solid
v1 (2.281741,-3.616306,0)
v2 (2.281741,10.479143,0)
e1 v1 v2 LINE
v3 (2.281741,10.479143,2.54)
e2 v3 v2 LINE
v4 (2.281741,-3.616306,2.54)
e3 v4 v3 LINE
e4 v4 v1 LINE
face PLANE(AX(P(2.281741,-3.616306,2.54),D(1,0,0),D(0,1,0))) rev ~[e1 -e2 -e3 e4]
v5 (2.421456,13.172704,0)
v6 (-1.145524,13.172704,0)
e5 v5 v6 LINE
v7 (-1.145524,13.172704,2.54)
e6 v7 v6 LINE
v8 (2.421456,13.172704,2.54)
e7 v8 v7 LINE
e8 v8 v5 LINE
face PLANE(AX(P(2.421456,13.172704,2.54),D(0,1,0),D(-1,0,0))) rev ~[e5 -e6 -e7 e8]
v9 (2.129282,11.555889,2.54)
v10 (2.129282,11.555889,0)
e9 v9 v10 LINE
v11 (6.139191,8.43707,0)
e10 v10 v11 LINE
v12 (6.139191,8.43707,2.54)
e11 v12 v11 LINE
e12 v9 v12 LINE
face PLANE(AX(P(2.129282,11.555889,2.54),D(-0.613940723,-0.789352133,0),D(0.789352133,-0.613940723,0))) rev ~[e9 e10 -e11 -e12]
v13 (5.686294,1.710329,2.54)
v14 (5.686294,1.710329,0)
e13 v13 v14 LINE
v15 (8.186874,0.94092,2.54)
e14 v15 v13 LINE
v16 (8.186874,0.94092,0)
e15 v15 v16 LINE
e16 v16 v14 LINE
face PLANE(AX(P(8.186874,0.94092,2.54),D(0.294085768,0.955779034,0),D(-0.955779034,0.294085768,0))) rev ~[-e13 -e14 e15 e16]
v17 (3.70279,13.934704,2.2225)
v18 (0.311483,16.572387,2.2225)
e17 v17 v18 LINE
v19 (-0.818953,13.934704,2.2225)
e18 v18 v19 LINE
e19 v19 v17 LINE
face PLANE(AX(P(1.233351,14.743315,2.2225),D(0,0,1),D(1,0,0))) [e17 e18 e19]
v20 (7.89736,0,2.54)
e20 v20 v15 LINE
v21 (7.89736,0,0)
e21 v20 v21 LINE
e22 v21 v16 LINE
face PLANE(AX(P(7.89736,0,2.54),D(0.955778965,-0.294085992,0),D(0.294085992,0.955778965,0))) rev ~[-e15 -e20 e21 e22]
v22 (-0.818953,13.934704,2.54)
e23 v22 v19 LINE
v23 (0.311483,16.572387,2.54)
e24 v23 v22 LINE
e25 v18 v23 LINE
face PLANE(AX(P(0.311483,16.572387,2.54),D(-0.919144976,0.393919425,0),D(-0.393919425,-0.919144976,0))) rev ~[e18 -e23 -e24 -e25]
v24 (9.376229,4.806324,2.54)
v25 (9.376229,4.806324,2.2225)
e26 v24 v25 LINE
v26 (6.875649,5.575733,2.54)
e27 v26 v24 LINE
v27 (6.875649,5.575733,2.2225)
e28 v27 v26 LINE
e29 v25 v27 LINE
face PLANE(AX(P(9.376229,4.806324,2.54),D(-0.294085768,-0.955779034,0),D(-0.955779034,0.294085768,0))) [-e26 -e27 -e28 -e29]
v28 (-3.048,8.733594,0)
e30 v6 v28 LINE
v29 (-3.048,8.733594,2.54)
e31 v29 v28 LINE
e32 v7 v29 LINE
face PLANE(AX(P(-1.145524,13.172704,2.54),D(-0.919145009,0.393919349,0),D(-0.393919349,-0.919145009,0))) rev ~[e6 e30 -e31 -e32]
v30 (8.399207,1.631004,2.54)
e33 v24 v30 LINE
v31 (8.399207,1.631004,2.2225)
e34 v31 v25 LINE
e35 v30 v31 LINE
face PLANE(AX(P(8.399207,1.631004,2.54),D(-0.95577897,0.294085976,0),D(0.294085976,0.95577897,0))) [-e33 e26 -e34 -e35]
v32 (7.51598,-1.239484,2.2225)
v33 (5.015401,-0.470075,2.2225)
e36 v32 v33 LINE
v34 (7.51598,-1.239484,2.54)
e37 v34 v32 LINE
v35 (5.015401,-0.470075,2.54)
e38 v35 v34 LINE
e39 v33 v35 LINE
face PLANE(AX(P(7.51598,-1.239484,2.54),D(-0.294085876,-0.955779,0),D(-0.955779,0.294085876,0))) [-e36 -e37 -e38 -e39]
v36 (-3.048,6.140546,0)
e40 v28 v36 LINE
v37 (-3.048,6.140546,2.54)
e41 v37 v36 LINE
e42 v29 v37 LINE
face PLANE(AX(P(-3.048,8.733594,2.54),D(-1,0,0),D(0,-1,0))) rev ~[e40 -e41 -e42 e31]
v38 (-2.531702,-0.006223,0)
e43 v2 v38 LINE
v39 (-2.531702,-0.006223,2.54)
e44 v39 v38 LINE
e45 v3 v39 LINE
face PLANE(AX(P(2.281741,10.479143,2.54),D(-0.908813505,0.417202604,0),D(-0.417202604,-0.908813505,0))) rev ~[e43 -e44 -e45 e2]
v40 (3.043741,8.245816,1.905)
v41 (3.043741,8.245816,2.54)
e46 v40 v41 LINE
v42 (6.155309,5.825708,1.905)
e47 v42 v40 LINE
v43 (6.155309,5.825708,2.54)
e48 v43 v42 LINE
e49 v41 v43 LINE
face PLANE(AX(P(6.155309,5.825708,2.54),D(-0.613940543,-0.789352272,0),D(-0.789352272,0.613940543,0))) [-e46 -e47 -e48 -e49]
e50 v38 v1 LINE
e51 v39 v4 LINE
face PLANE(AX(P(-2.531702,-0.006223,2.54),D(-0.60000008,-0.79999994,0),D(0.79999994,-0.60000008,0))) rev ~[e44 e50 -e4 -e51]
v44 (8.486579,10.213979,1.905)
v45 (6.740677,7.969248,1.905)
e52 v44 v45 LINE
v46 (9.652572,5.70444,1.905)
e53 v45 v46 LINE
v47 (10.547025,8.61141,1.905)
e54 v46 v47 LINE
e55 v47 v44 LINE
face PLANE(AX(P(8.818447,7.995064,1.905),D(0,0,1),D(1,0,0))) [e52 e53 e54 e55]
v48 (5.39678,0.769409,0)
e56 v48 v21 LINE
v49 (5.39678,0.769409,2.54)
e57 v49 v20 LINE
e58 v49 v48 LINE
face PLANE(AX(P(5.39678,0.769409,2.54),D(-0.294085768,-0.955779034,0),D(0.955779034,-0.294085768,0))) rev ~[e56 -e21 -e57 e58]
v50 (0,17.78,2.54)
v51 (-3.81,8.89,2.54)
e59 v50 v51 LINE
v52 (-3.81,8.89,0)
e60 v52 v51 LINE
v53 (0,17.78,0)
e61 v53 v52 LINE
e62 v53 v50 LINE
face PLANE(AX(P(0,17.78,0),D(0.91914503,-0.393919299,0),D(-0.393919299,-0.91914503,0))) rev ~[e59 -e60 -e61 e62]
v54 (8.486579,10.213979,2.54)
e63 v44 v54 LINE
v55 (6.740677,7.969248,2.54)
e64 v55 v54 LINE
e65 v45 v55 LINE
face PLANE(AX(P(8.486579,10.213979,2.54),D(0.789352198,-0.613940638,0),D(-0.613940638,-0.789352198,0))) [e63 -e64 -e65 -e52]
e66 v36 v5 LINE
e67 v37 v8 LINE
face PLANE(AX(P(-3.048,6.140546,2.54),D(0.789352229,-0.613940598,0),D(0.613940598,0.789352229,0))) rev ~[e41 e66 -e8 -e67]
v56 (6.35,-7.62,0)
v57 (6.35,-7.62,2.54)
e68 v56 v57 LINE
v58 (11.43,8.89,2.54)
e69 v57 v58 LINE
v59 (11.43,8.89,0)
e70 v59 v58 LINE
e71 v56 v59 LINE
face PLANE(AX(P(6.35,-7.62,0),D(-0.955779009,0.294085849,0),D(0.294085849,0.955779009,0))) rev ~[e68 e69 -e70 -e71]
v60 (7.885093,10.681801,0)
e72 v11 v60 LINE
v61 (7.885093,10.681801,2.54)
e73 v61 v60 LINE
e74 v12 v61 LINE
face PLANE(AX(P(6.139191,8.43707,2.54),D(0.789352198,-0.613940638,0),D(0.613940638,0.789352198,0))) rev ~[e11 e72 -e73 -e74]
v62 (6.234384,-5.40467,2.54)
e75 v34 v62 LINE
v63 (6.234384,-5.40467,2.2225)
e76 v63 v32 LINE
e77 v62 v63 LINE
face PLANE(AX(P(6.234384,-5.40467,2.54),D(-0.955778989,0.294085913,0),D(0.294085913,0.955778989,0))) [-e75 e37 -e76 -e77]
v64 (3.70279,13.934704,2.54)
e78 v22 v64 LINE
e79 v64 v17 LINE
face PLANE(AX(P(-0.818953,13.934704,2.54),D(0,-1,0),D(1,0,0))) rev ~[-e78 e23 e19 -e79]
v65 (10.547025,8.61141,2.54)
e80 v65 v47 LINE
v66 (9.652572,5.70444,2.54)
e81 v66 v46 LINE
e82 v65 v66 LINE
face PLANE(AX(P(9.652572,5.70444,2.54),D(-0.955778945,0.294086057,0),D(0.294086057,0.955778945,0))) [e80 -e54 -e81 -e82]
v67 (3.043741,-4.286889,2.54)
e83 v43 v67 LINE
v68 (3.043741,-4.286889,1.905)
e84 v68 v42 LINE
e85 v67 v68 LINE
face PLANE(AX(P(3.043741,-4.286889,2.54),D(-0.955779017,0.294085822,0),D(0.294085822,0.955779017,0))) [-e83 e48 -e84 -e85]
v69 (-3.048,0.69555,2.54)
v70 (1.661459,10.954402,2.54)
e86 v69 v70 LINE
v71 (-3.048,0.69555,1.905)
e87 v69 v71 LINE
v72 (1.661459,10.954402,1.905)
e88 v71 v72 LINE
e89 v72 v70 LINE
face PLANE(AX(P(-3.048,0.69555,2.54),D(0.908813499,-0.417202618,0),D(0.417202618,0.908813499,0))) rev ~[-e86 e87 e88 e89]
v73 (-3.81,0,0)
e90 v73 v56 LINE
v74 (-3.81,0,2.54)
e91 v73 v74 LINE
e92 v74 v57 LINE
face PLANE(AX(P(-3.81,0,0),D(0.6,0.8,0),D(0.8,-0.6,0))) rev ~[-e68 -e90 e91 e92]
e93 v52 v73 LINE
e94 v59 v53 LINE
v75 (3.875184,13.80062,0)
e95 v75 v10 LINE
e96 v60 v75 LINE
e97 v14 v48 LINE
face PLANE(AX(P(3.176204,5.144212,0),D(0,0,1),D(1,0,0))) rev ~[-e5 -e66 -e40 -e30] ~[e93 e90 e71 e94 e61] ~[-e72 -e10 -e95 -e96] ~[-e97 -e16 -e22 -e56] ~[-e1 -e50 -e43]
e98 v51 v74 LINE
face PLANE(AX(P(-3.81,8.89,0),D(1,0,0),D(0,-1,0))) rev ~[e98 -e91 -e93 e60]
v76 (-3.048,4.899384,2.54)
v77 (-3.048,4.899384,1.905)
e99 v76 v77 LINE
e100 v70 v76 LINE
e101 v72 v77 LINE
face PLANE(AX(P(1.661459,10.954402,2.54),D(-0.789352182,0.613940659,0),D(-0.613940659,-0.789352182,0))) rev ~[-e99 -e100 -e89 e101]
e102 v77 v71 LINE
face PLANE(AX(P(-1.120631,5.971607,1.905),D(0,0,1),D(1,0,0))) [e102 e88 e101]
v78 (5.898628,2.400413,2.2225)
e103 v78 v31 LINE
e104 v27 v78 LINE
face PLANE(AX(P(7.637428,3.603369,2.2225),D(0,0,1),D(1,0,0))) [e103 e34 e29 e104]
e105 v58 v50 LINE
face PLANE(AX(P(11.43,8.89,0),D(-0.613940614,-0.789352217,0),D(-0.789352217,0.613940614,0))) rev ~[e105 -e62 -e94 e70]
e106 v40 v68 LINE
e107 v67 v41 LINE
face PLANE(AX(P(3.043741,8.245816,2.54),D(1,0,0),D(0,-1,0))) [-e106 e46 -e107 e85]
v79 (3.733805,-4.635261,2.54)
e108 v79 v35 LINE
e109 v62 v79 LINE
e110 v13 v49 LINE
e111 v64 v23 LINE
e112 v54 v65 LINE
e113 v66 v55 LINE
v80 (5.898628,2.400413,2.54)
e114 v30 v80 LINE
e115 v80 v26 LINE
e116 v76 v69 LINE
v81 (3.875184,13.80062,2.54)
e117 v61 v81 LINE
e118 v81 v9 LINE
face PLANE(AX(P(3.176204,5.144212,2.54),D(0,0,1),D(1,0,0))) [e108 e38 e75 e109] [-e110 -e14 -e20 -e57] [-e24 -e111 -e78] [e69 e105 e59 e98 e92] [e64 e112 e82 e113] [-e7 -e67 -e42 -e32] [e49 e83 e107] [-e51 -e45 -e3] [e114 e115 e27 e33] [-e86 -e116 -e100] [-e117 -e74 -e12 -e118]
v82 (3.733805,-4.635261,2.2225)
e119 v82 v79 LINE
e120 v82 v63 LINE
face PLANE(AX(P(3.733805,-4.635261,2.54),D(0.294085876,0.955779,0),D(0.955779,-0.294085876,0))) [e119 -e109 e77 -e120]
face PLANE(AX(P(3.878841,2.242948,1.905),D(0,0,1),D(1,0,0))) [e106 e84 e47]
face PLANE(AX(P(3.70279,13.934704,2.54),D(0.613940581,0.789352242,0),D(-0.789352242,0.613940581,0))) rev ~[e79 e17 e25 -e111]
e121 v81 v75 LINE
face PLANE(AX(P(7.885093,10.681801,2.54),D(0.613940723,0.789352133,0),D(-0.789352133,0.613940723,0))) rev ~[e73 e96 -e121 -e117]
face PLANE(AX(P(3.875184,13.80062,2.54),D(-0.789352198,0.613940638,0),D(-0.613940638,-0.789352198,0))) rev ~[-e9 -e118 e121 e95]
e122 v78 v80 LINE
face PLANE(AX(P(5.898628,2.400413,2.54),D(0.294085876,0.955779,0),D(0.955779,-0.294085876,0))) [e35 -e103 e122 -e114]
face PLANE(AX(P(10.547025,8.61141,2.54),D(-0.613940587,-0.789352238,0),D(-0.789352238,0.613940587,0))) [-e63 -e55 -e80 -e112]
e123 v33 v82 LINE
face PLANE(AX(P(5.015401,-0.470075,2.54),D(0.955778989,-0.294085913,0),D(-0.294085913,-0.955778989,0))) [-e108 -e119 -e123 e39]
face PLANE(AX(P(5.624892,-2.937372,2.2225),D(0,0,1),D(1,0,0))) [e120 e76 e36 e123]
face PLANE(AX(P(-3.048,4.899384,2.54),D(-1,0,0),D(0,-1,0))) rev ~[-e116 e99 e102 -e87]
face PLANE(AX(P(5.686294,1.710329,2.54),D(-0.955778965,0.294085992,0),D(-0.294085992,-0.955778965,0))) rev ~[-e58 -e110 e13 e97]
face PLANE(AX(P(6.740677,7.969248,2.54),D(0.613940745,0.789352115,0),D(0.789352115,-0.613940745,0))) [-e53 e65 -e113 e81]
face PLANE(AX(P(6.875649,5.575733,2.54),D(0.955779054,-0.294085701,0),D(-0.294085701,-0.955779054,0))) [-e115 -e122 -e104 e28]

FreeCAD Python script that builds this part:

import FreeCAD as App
import Part
import Sketcher
Q = App.Units.Quantity


def add_polygon(sketch, points):
    """Adds a closed chain of lines whose ends are joined by coincident constraints."""
    first, n = sketch.GeometryCount, len(points)
    for a, b in zip(points, points[1:] + points[:1]):
        sketch.addGeometry(Part.LineSegment(App.Vector(*a, 0), App.Vector(*b, 0)), False)
    for i in range(n):
        sketch.addConstraint(Sketcher.Constraint("Coincident", first + i, 2, first + (i + 1) % n, 1))

doc = App.newDocument("Part")
body = doc.addObject("PartDesign::Body", "Body")

# Sketch on XY plane
sketch1 = doc.addObject("Sketcher::SketchObject", "Sketch")
body.addObject(sketch1)
sketch1.AttachmentSupport = (doc.XY_Plane, [""])
sketch1.MapMode = "FlatFace"
add_polygon(sketch1, [(11, 9), (0, 18), (-4, 9), (-4, 0), (6, -8)])  # lines 0-4
sketch1.addConstraint([
    Sketcher.Constraint("Vertical", 2),
    Sketcher.Constraint("PointOnObject", 0, 2, -2),
    Sketcher.Constraint("PointOnObject", 2, 2, -1),
    Sketcher.Constraint("Horizontal", 1, 2, 4, 2),
    Sketcher.Constraint("DistanceY", 3, 2, 0, 2, Q("1 in")),
    Sketcher.Constraint("Distance", 3, Q("0.5 in")),
    Sketcher.Constraint("DistanceY", 2, 2, 2, 1, Q("0.35 in")),
    Sketcher.Constraint("DistanceY", -1, 1, 0, 2, Q("0.7 in")),
    Sketcher.Constraint("DistanceX", 1, 2, 4, 2, Q("0.6 in")),
    Sketcher.Constraint("DistanceX", 1, 2, -1, 1, Q("0.15 in")),
])
pad1 = doc.addObject("PartDesign::Pad", "Pad")
body.addObject(pad1)
pad1.Profile = sketch1
pad1.Length = Q("0.1 in")

# Sketch on XY plane
sketch2 = doc.addObject("Sketcher::SketchObject", "Sketch001")
body.addObject(sketch2)
sketch2.AttachmentSupport = (doc.XY_Plane, [""])
sketch2.MapMode = "FlatFace"
sketch2.AttachmentOffset = App.Placement(App.Vector(0, 0, 0.1 * 25.4), App.Rotation())
add_polygon(sketch2, [(-3, 6.1), (2.4, 13.2), (-1.1, 13.2), (-3, 8.7)])  # lines 0-3
add_polygon(sketch2, [(7.9, 10.7), (3.9, 13.8), (2.1, 11.6), (6.1, 8.4)])  # lines 4-7
add_polygon(sketch2, [(2.3, -3.6), (2.3, 10.5), (-2.5, 0)])  # lines 8-10
add_polygon(sketch2, [(8.2, 0.9), (5.7, 1.7), (5.4, 0.8), (7.9, 0)])  # lines 11-14
sketch2.addConstraint([
    Sketcher.Constraint("Horizontal", 1),
    Sketcher.Constraint("Vertical", 3),
    Sketcher.Constraint("Vertical", 8),
    Sketcher.Constraint("PointOnObject", 13, 2, -1),
    Sketcher.Constraint("Perpendicular", 0, 4),
    Sketcher.Constraint("Perpendicular", 4, 5),
    Sketcher.Constraint("Perpendicular", 5, 6),
    Sketcher.Constraint("Perpendicular", 6, 7),
    Sketcher.Constraint("Perpendicular", 11, 12),
    Sketcher.Constraint("Perpendicular", 12, 13),
    Sketcher.Constraint("Perpendicular", 13, 14),
    Sketcher.Constraint("Distance", 4, Q("0.2 in")),
    Sketcher.Constraint("DistanceX", 2, 2, -1, 1, Q("0.12 in")),
    Sketcher.Constraint("DistanceX", 1, 2, 6, 2, Q("0.2867998 in")),
    Sketcher.Constraint("DistanceX", 1, 2, 1, 1, Q("3.56698 mm")),
    Sketcher.Constraint("DistanceY", 3, 2, 3, 1, Q("2.593048 mm")),
    Sketcher.Constraint("DistanceY", 8, 1, 8, 2, Q("14.095449 mm")),
    Sketcher.Constraint("DistanceY", -1, 1, 7, 2, Q("10.681801 mm")),
    Sketcher.Constraint("DistanceY", 10, 2, 2, 2, Q("12.3499 mm")),
    Sketcher.Constraint("DistanceX", 11, 2, 7, 2, Q("2.198799 mm")),
    Sketcher.Constraint("Distance", 0, Q("8.908771 mm")),
    Sketcher.Constraint("DistanceY", -1, 1, 4, 2, Q("13.80062 mm")),
    Sketcher.Constraint("DistanceY", -1, 1, 5, 2, Q("11.555889 mm")),
    Sketcher.Constraint("DistanceX", -1, 1, 8, 2, Q("2.281741 mm")),
    Sketcher.Constraint("DistanceY", -1, 1, 11, 2, Q("1.710329 mm")),
    Sketcher.Constraint("DistanceX", -1, 1, 12, 2, Q("5.39678 mm")),
    Sketcher.Constraint("DistanceY", -1, 1, 12, 2, Q("0.769409 mm")),
    Sketcher.Constraint("DistanceY", 9, 2, 3, 2, Q("6.146769 mm")),
    Sketcher.Constraint("DistanceX", 9, 2, 12, 2, Q("7.928482 mm")),
    Sketcher.Constraint("DistanceY", 9, 2, 12, 2, Q("0.775632 mm")),
])
pocket1 = doc.addObject("PartDesign::Pocket", "Pocket")
body.addObject(pocket1)
pocket1.Profile = sketch2
pocket1.Type = "ThroughAll"

# Sketch on XY plane
sketch3 = doc.addObject("Sketcher::SketchObject", "Sketch002")
body.addObject(sketch3)
sketch3.AttachmentSupport = (doc.XY_Plane, [""])
sketch3.MapMode = "FlatFace"
sketch3.AttachmentOffset = App.Placement(App.Vector(0, 0, 0.1 * 25.4), App.Rotation())
add_polygon(sketch3, [(6.2, 5.8), (3, 8.2), (3, -4.3)])  # lines 0-2
add_polygon(sketch3, [(10.5, 8.6), (8.5, 10.2), (6.7, 8), (9.7, 5.7)])  # lines 3-6
add_polygon(sketch3, [(-3, 0.7), (1.7, 11), (-3, 4.9)])  # lines 7-9
sketch3.addConstraint([
    Sketcher.Constraint("Vertical", 1),
    Sketcher.Constraint("Vertical", 9),
    Sketcher.Constraint("Parallel", 0, 3),
    Sketcher.Constraint("Perpendicular", 3, 4),
    Sketcher.Constraint("Perpendicular", 4, 5),
    Sketcher.Constraint("Parallel", 2, 6),
    Sketcher.Constraint("Perpendicular", 5, 8),
    Sketcher.Constraint("DistanceX", 8, 2, -1, 1, Q("0.12 in")),
    Sketcher.Constraint("Distance", 3, Q("2.6103 mm")),
    Sketcher.Constraint("DistanceY", 2, 2, 6, 2, Q("2.785702 mm")),
    Sketcher.Constraint("Distance", 5, Q("3.688968 mm")),
    Sketcher.Constraint("Distance", 7, Q("11.288182 mm")),
    Sketcher.Constraint("Distance", 8, Q("7.67087 mm")),
    Sketcher.Constraint("DistanceY", 1, 2, 1, 1, Q("12.532705 mm")),
    Sketcher.Constraint("DistanceY", 9, 2, 9, 1, Q("4.203834 mm")),
    Sketcher.Constraint("DistanceX", -1, 1, 0, 2, Q("3.043741 mm")),
    Sketcher.Constraint("DistanceY", 1, 2, -1, 1, Q("4.286889 mm")),
    Sketcher.Constraint("DistanceX", -1, 1, 2, 2, Q("6.155309 mm")),
    Sketcher.Constraint("DistanceX", -1, 1, 3, 2, Q("8.486579 mm")),
    Sketcher.Constraint("DistanceY", -1, 1, 9, 2, Q("0.69555 mm")),
])
pocket2 = doc.addObject("PartDesign::Pocket", "Pocket001")
body.addObject(pocket2)
pocket2.Profile = sketch3
pocket2.Length = Q("0.05 in")
pocket2.Midplane = True

# Sketch on XY plane
sketch4 = doc.addObject("Sketcher::SketchObject", "Sketch003")
body.addObject(sketch4)
sketch4.AttachmentSupport = (doc.XY_Plane, [""])
sketch4.MapMode = "FlatFace"
sketch4.AttachmentOffset = App.Placement(App.Vector(0, 0, 0.1 * 25.4), App.Rotation())
add_polygon(sketch4, [(7.5, -1.2), (5, -0.5), (3.7, -4.6), (6.2, -5.4)])  # lines 0-3
add_polygon(sketch4, [(9.4, 4.8), (6.9, 5.6), (5.9, 2.4), (8.4, 1.6)])  # lines 4-7
add_polygon(sketch4, [(3.7, 13.9), (0.3, 16.6), (-0.8, 13.9)])  # lines 8-10
sketch4.addConstraint([
    Sketcher.Constraint("Horizontal", 10),
    Sketcher.Constraint("Perpendicular", 0, 1),
    Sketcher.Constraint("Perpendicular", 1, 2),
    Sketcher.Constraint("Perpendicular", 2, 3),
    Sketcher.Constraint("Perpendicular", 3, 4),
    Sketcher.Constraint("Perpendicular", 4, 5),
    Sketcher.Constraint("Perpendicular", 5, 6),
    Sketcher.Constraint("Perpendicular", 6, 7),
    Sketcher.Constraint("Equal", 2, 4),
    Sketcher.Constraint("DistanceX", -1, 1, 1, 2, Q("0.1470002 in")),
    Sketcher.Constraint("DistanceX", -1, 1, 0, 2, Q("5.015401 mm")),
    Sketcher.Constraint("DistanceX", 5, 2, 7, 2, Q("3.477601 mm")),
    Sketcher.Constraint("DistanceY", 0, 2, 7, 2, Q("5.276399 mm")),
    Sketcher.Constraint("DistanceX", 9, 2, 4, 2, Q("7.694602 mm")),
    Sketcher.Constraint("DistanceY", 6, 2, 9, 2, Q("12.3037 mm")),
    Sketcher.Constraint("DistanceX", 10, 1, 10, 2, Q("4.521743 mm")),
    Sketcher.Constraint("DistanceY", 1, 2, -1, 1, Q("4.635261 mm")),
    Sketcher.Constraint("DistanceY", 2, 2, -1, 1, Q("5.40467 mm")),
    Sketcher.Constraint("DistanceX", -1, 1, 3, 2, Q("7.51598 mm")),
    Sketcher.Constraint("DistanceX", -1, 1, 4, 2, Q("6.875649 mm")),
    Sketcher.Constraint("Distance", 8, Q("4.296316 mm")),
    Sketcher.Constraint("Distance", 9, Q("2.869714 mm")),
])
pocket3 = doc.addObject("PartDesign::Pocket", "Pocket002")
body.addObject(pocket3)
pocket3.Profile = sketch4
pocket3.Length = Q("0.025 in")
pocket3.Midplane = True

doc.recompute()
